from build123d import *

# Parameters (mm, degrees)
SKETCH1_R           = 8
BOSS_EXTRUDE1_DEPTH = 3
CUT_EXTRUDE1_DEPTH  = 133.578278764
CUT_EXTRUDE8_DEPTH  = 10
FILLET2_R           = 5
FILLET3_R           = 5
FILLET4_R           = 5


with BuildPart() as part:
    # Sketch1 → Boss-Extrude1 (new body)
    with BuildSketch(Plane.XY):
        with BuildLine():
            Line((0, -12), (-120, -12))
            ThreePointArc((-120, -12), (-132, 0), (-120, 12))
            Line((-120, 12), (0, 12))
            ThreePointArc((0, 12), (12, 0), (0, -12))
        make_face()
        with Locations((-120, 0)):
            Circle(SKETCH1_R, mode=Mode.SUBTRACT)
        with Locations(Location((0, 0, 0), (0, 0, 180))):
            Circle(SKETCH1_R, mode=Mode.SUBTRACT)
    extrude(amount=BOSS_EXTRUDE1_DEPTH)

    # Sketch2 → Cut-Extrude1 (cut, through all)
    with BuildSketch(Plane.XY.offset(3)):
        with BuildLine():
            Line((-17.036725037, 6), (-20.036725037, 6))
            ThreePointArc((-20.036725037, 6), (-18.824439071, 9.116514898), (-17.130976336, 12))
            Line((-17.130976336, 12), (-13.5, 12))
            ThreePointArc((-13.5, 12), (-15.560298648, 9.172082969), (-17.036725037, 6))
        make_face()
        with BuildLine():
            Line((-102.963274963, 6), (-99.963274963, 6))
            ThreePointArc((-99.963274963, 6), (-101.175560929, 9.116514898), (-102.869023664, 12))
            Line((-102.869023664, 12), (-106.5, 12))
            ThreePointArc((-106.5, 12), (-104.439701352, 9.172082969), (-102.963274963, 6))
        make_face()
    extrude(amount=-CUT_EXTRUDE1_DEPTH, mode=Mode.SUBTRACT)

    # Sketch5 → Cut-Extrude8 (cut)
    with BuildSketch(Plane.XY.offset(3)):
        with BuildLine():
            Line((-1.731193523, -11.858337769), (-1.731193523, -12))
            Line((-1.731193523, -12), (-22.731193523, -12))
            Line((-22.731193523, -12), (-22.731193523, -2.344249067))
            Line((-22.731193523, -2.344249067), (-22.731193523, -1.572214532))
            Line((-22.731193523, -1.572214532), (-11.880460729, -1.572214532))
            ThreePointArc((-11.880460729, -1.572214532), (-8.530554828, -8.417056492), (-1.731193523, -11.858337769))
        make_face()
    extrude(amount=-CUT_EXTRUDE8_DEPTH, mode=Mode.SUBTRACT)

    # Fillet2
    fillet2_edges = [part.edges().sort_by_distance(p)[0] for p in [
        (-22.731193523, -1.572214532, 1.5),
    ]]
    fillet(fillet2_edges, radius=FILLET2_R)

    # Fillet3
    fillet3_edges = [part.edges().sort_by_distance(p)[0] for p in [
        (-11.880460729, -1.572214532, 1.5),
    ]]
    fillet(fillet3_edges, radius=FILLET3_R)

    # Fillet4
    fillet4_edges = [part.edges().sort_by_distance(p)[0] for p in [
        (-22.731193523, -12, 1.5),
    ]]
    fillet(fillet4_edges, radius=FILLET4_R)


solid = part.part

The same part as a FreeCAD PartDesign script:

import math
import FreeCAD as App
import Part
import Sketcher
from FreeCAD import Vector


def edges_at(feature, points):
    """Names of the edges that pass closest to the given points."""
    edges = feature.Shape.Edges
    near = lambda p: min(range(len(edges)), key=lambda i: edges[i].distToShape(Part.Vertex(*p))[0])
    return sorted({f"Edge{near(p) + 1}" for p in points})

doc = App.newDocument("Part")
params = doc.addObject("Spreadsheet::Sheet", "Params")
for row, (alias, value) in enumerate([
    ("sketch1_diameter", "16 mm"),
    ("sketch1_radius", "12 mm"),
    ("sketch1_width", "120 mm"),
    ("pad1_length", "3 mm"),
    ("sketch2_width", "3 mm"),
    ("sketch3_width", "21 mm"),
    ("pocket2_length", "10 mm"),
    ("fillet_radius", "5 mm"),
    ("fillet2_radius", "5 mm"),
    ("fillet3_radius", "5 mm"),
], start=1):
    params.set(f"A{row}", alias)
    params.set(f"B{row}", "=" + value)
    params.setAlias(f"B{row}", alias)

body = doc.addObject("PartDesign::Body", "Body")

# Sketch on XY plane
sketch1 = body.newObject("Sketcher::SketchObject", "Sketch")
sketch1.AttachmentSupport = (doc.getObject("XY_Plane"), [""])
sketch1.MapMode = "FlatFace"
sketch1.addGeometry(Part.LineSegment(Vector(-120, -12, 0), Vector(0, -12, 0)), False)
sketch1.addGeometry(Part.ArcOfCircle(Part.Circle(Vector(0, 0, 0), Vector(0, 0, 1), 12), math.radians(-90), math.radians(90)), False)
sketch1.addGeometry(Part.LineSegment(Vector(0, 12, 0), Vector(-120, 12, 0)), False)
sketch1.addGeometry(Part.ArcOfCircle(Part.Circle(Vector(-120, 0, 0), Vector(0, 0, 1), 12), math.radians(90), math.radians(270)), False)
sketch1.addGeometry(Part.Circle(Vector(0, 0, 0), Vector(0, 0, 1), 8), False)
sketch1.addGeometry(Part.Circle(Vector(-120, 0, 0), Vector(0, 0, 1), 8), False)
sketch1.addConstraint(Sketcher.Constraint("Tangent", 0, 2, 1, 1))
sketch1.addConstraint(Sketcher.Constraint("Tangent", 1, 2, 2, 1))
sketch1.addConstraint(Sketcher.Constraint("Tangent", 2, 2, 3, 1))
sketch1.addConstraint(Sketcher.Constraint("Tangent", 3, 2, 0, 1))
sketch1.addConstraint(Sketcher.Constraint("Horizontal", 0))
sketch1.addConstraint(Sketcher.Constraint("Horizontal", 2))
sketch1.addConstraint(Sketcher.Constraint("Coincident", 1, 3, -1, 1))
sketch1.addConstraint(Sketcher.Constraint("Coincident", 4, 3, -1, 1))
sketch1.addConstraint(Sketcher.Constraint("Coincident", 5, 3, 3, 3))
sketch1.addConstraint(Sketcher.Constraint("Equal", 4, 5))
sketch1.addConstraint(Sketcher.Constraint("Diameter", 4, 16.0))
sketch1.addConstraint(Sketcher.Constraint("Radius", 1, 12.0))
sketch1.addConstraint(Sketcher.Constraint("DistanceX", 0, 1, 0, 2, 120.0))
sketch1.setExpression("Constraints[10]", "Params.sketch1_diameter")
sketch1.setExpression("Constraints[11]", "Params.sketch1_radius")
sketch1.setExpression("Constraints[12]", "Params.sketch1_width")
pad1 = body.newObject("PartDesign::Pad", "Pad")
pad1.Profile = sketch1
pad1.setExpression("Length", "Params.pad1_length")

# Sketch on XY plane
sketch2 = body.newObject("Sketcher::SketchObject", "Sketch001")
sketch2.AttachmentSupport = (doc.getObject("XY_Plane"), [""])
sketch2.MapMode = "FlatFace"
sketch2.AttachmentOffset = App.Placement(Vector(0, 0, 3), App.Rotation())
sketch2.addGeometry(Part.LineSegment(Vector(-20, 6, 0), Vector(-17, 6, 0)), False)
sketch2.addGeometry(Part.ArcOfCircle(Part.Circle(Vector(0, 0, 0), Vector(0, 0, 1), 18.1), math.radians(138), math.radians(161)), False)
sketch2.addGeometry(Part.LineSegment(Vector(-13.5, 12, 0), Vector(-17.1, 12, 0)), False)
sketch2.addGeometry(Part.ArcOfCircle(Part.Circle(Vector(0, 0, 0), Vector(0, 0, 1), 20.9), math.radians(144.99), math.radians(163.33)), False)
sketch2.addGeometry(Part.LineSegment(Vector(-103, 6, 0), Vector(-100, 6, 0)), False)
sketch2.addGeometry(Part.ArcOfCircle(Part.Circle(Vector(-120, 0, 0), Vector(0, 0, 1), 20.9), math.radians(16.67), math.radians(35.01)), False)
sketch2.addGeometry(Part.LineSegment(Vector(-102.9, 12, 0), Vector(-106.5, 12, 0)), False)
sketch2.addGeometry(Part.ArcOfCircle(Part.Circle(Vector(-120, 0, 0), Vector(0, 0, 1), 18.1), math.radians(19), math.radians(42)), False)
sketch2.addConstraint(Sketcher.Constraint("Coincident", 0, 2, 1, 2))
sketch2.addConstraint(Sketcher.Constraint("Coincident", 1, 1, 2, 1))
sketch2.addConstraint(Sketcher.Constraint("Coincident", 2, 2, 3, 1))
sketch2.addConstraint(Sketcher.Constraint("Coincident", 3, 2, 0, 1))
sketch2.addConstraint(Sketcher.Constraint("Coincident", 4, 2, 5, 1))
sketch2.addConstraint(Sketcher.Constraint("Coincident", 5, 2, 6, 1))
sketch2.addConstraint(Sketcher.Constraint("Coincident", 6, 2, 7, 2))
sketch2.addConstraint(Sketcher.Constraint("Coincident", 7, 1, 4, 1))
sketch2.addConstraint(Sketcher.Constraint("Horizontal", 0))
sketch2.addConstraint(Sketcher.Constraint("Horizontal", 2))
sketch2.addConstraint(Sketcher.Constraint("Horizontal", 4))
sketch2.addConstraint(Sketcher.Constraint("Horizontal", 6))
sketch2.addConstraint(Sketcher.Constraint("Coincident", 1, 3, -1, 1))
sketch2.addConstraint(Sketcher.Constraint("Coincident", 3, 3, -1, 1))
sketch2.addConstraint(Sketcher.Constraint("Coincident", 7, 3, 5, 3))
sketch2.addConstraint(Sketcher.Constraint("Equal", 3, 5))
sketch2.addConstraint(Sketcher.Constraint("Equal", 1, 7))
sketch2.addConstraint(Sketcher.Constraint("PointOnObject", 5, 3, -1))
sketch2.addConstraint(Sketcher.Constraint("Horizontal", 3, 2, 4, 2))
sketch2.addConstraint(Sketcher.Constraint("Horizontal", 2, 2, 5, 2))
sketch2.addConstraint(Sketcher.Constraint("DistanceX", 0, 1, 0, 2, 3.0))
sketch2.addConstraint(Sketcher.Constraint("DistanceX", 5, 3, -1, 1, 120.0))
sketch2.addConstraint(Sketcher.Constraint("DistanceY", -1, 1, 0, 2, 6.0))
sketch2.addConstraint(Sketcher.Constraint("DistanceY", -1, 1, 1, 1, 12.0))
sketch2.addConstraint(Sketcher.Constraint("DistanceX", 1, 1, -1, 1, 13.5))
sketch2.setExpression("Constraints[20]", "Params.sketch2_width")
pocket1 = body.newObject("PartDesign::Pocket", "Pocket")
pocket1.Profile = sketch2
pocket1.Type = "ThroughAll"

# Sketch on XY plane
sketch3 = body.newObject("Sketcher::SketchObject", "Sketch002")
sketch3.AttachmentSupport = (doc.getObject("XY_Plane"), [""])
sketch3.MapMode = "FlatFace"
sketch3.AttachmentOffset = App.Placement(Vector(0, 0, 3), App.Rotation())
sketch3.addGeometry(Part.LineSegment(Vector(-1.73, -12, 0), Vector(-1.73, -11.86, 0)), False)
sketch3.addGeometry(Part.ArcOfCircle(Part.Circle(Vector(0, 0, 0), Vector(0, 0, 1), 11.98), math.radians(-172), math.radians(-98)), False)
sketch3.addGeometry(Part.LineSegment(Vector(-11.88, -1.57, 0), Vector(-22.73, -1.57, 0)), False)
sketch3.addGeometry(Part.LineSegment(Vector(-22.73, -1.57, 0), Vector(-22.73, -12, 0)), False)
sketch3.addGeometry(Part.LineSegment(Vector(-22.73, -12, 0), Vector(-1.73, -12, 0)), False)
sketch3.addConstraint(Sketcher.Constraint("Coincident", 0, 2, 1, 2))
sketch3.addConstraint(Sketcher.Constraint("Coincident", 1, 1, 2, 1))
sketch3.addConstraint(Sketcher.Constraint("Coincident", 2, 2, 3, 1))
sketch3.addConstraint(Sketcher.Constraint("Coincident", 3, 2, 4, 1))
sketch3.addConstraint(Sketcher.Constraint("Coincident", 4, 2, 0, 1))
sketch3.addConstraint(Sketcher.Constraint("Vertical", 0))
sketch3.addConstraint(Sketcher.Constraint("Horizontal", 2))
sketch3.addConstraint(Sketcher.Constraint("Vertical", 3))
sketch3.addConstraint(Sketcher.Constraint("Horizontal", 4))
sketch3.addConstraint(Sketcher.Constraint("Coincident", 1, 3, -1, 1))
sketch3.addConstraint(Sketcher.Constraint("DistanceX", 4, 1, 4, 2, 21.0))
sketch3.addConstraint(Sketcher.Constraint("DistanceY", 3, 2, -1, 1, 12.0))
sketch3.addConstraint(Sketcher.Constraint("Radius", 1, 11.98404))
sketch3.addConstraint(Sketcher.Constraint("DistanceX", 2, 2, 2, 1, 10.850733))
sketch3.addConstraint(Sketcher.Constraint("DistanceY", 0, 1, 0, 2, 0.141662))
sketch3.setExpression("Constraints[10]", "Params.sketch3_width")
pocket2 = body.newObject("PartDesign::Pocket", "Pocket001")
pocket2.Profile = sketch3
pocket2.setExpression("Length", "Params.pocket2_length")
doc.recompute()

fillet = body.newObject("PartDesign::Fillet", "Fillet")
fillet.Base = (pocket2, edges_at(pocket2, [(-22.731, -1.572, 1.5)]))
fillet.setExpression("Radius", "Params.fillet_radius")
doc.recompute()

fillet2 = body.newObject("PartDesign::Fillet", "Fillet001")
fillet2.Base = (fillet, edges_at(fillet, [(-11.88, -1.572, 1.5)]))
fillet2.setExpression("Radius", "Params.fillet2_radius")
doc.recompute()

fillet3 = body.newObject("PartDesign::Fillet", "Fillet002")
fillet3.Base = (fillet2, edges_at(fillet2, [(-22.731, -12, 1.5)]))
fillet3.setExpression("Radius", "Params.fillet3_radius")

doc.recompute()
